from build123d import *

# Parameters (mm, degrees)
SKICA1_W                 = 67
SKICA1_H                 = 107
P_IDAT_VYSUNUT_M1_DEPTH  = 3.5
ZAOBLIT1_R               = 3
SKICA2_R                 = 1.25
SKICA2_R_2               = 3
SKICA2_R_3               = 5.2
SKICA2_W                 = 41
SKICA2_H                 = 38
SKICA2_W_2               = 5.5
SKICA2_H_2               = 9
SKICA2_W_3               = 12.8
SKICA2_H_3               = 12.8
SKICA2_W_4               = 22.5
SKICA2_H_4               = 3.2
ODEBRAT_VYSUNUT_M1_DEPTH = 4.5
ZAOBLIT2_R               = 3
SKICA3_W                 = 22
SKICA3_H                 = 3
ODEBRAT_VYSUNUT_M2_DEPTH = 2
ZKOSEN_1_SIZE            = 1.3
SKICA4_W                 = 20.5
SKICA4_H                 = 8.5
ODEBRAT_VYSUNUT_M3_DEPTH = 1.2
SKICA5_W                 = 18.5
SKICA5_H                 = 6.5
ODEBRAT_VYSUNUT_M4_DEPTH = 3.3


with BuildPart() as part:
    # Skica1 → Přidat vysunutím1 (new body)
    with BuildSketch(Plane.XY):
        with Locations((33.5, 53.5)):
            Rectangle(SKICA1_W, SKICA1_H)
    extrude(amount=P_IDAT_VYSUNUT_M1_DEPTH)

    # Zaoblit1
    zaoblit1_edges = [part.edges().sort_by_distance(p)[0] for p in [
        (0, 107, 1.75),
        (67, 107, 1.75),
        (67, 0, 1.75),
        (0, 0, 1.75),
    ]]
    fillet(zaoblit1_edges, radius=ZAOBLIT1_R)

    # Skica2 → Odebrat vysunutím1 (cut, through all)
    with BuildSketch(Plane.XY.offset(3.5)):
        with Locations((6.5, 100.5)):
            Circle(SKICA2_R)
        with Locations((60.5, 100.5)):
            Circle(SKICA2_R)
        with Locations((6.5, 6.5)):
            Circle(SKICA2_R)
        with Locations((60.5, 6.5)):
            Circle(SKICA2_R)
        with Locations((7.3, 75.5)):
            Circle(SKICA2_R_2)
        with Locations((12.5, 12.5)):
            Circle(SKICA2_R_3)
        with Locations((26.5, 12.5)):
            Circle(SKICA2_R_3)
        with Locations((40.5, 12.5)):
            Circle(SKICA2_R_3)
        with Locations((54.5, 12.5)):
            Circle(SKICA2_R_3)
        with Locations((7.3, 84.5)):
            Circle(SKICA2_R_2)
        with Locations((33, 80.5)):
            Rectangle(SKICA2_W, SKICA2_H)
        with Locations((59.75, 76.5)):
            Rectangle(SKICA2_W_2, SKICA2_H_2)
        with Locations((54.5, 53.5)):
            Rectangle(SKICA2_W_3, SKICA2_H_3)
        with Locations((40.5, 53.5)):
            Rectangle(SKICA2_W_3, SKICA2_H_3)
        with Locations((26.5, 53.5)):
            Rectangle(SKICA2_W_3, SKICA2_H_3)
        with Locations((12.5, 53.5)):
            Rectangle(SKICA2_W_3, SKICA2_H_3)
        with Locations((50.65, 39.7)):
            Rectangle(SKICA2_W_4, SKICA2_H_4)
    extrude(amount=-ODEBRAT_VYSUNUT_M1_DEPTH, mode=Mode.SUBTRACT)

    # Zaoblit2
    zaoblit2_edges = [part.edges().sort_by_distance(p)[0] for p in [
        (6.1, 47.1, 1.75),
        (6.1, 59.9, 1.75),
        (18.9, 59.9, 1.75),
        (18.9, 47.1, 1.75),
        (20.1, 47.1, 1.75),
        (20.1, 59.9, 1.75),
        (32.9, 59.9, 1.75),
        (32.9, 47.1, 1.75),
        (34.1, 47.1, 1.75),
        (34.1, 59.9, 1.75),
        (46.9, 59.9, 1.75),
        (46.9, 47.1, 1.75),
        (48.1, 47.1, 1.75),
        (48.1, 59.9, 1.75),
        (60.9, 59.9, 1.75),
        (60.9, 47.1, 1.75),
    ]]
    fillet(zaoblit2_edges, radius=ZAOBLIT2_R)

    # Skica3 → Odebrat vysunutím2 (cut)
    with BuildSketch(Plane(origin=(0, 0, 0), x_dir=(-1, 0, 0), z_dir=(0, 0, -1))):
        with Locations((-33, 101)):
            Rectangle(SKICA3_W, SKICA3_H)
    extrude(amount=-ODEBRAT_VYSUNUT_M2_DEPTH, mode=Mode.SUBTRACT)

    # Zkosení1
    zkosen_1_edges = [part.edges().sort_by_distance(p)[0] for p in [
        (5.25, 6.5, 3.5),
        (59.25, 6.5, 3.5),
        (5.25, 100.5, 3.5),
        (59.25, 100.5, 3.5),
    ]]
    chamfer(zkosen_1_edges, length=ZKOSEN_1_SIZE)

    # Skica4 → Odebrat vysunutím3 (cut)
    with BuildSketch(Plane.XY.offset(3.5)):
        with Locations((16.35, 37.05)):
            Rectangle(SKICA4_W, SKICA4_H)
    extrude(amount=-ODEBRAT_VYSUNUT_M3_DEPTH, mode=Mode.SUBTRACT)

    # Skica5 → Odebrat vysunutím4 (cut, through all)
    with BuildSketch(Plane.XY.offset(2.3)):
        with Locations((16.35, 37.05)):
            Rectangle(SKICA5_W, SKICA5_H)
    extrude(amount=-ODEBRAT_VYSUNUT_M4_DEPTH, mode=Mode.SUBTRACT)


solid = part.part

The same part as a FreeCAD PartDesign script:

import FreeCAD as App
import Part
import Sketcher
from FreeCAD import Vector
Q = App.Units.Quantity


def edges_at(feature, points):
    """Names of the edges that pass closest to the given points."""
    edges = feature.Shape.Edges
    near = lambda p: min(range(len(edges)), key=lambda i: edges[i].distToShape(Part.Vertex(*p))[0])
    return sorted({f"Edge{near(p) + 1}" for p in points})


def add_polygon(sketch, points):
    """Adds a closed chain of lines whose ends are joined by coincident constraints."""
    first, n = sketch.GeometryCount, len(points)
    for a, b in zip(points, points[1:] + points[:1]):
        sketch.addGeometry(Part.LineSegment(App.Vector(*a, 0), App.Vector(*b, 0)), False)
    for i in range(n):
        sketch.addConstraint(Sketcher.Constraint("Coincident", first + i, 2, first + (i + 1) % n, 1))

doc = App.newDocument("Part")
body = doc.addObject("PartDesign::Body", "Body")

sketch1 = body.newObject("Sketcher::SketchObject", "Sketch")
sketch1.AttachmentSupport = (doc.getObject("XY_Plane"), [""])
sketch1.MapMode = "FlatFace"
add_polygon(sketch1, [(0, 107), (0, 0), (67, 0), (67, 107)])
sketch1.addConstraint([
    Sketcher.Constraint("Vertical", 0),
    Sketcher.Constraint("Horizontal", 1),
    Sketcher.Constraint("Vertical", 2),
    Sketcher.Constraint("Horizontal", 3),
    Sketcher.Constraint("Coincident", 0, 2, -1, 1),
    Sketcher.Constraint("DistanceX", 1, 1, 1, 2, Q("67 mm")),
    Sketcher.Constraint("DistanceY", 0, 2, 0, 1, Q("107 mm")),
])
pad1 = body.newObject("PartDesign::Pad", "Pad")
pad1.Profile = sketch1
pad1.Length = 3.5
doc.recompute()

fillet = body.newObject("PartDesign::Fillet", "Fillet")
fillet.Base = (pad1, edges_at(pad1, [
    (0, 107, 1.75),
    (67, 107, 1.75),
    (67, 0, 1.75),
    (0, 0, 1.75),
]))
fillet.Radius = 3

sketch2 = body.newObject("Sketcher::SketchObject", "Sketch001")
sketch2.AttachmentSupport = (doc.getObject("XY_Plane"), [""])
sketch2.MapMode = "FlatFace"
sketch2.AttachmentOffset = App.Placement(Vector(0, 0, 3.5), App.Rotation())
sketch2.addGeometry(Part.Circle(Vector(6.5, 100.5, 0), Vector(0, 0, 1), 1.25), False)
sketch2.addGeometry(Part.Circle(Vector(60.5, 100.5, 0), Vector(0, 0, 1), 1.25), False)
sketch2.addGeometry(Part.Circle(Vector(6.5, 6.5, 0), Vector(0, 0, 1), 1.25), False)
sketch2.addGeometry(Part.Circle(Vector(60.5, 6.5, 0), Vector(0, 0, 1), 1.25), False)
sketch2.addGeometry(Part.Circle(Vector(7.3, 75.5, 0), Vector(0, 0, 1), 3), False)
sketch2.addGeometry(Part.Circle(Vector(12.5, 12.5, 0), Vector(0, 0, 1), 5.2), False)
sketch2.addGeometry(Part.Circle(Vector(26.5, 12.5, 0), Vector(0, 0, 1), 5.2), False)
sketch2.addGeometry(Part.Circle(Vector(40.5, 12.5, 0), Vector(0, 0, 1), 5.2), False)
sketch2.addGeometry(Part.Circle(Vector(54.5, 12.5, 0), Vector(0, 0, 1), 5.2), False)
sketch2.addGeometry(Part.Circle(Vector(7.3, 84.5, 0), Vector(0, 0, 1), 3), False)
add_polygon(sketch2, [(12.5, 99.5), (12.5, 61.5), (53.5, 61.5), (53.5, 99.5)])
add_polygon(sketch2, [(57, 81), (57, 72), (62.5, 72), (62.5, 81)])
add_polygon(sketch2, [(48.1, 59.9), (48.1, 47.1), (60.9, 47.1), (60.9, 59.9)])
add_polygon(sketch2, [(34.1, 59.9), (34.1, 47.1), (46.9, 47.1), (46.9, 59.9)])
add_polygon(sketch2, [(20.1, 59.9), (20.1, 47.1), (32.9, 47.1), (32.9, 59.9)])
add_polygon(sketch2, [(6.1, 59.9), (6.1, 47.1), (18.9, 47.1), (18.9, 59.9)])
add_polygon(sketch2, [(39.4, 41.3), (39.4, 38.1), (61.9, 38.1), (61.9, 41.3)])
sketch2.addConstraint([
    Sketcher.Constraint("Vertical", 10),
    Sketcher.Constraint("Horizontal", 11),
    Sketcher.Constraint("Vertical", 12),
    Sketcher.Constraint("Horizontal", 13),
    Sketcher.Constraint("Vertical", 14),
    Sketcher.Constraint("Horizontal", 15),
    Sketcher.Constraint("Vertical", 16),
    Sketcher.Constraint("Horizontal", 17),
    Sketcher.Constraint("Vertical", 18),
    Sketcher.Constraint("Horizontal", 19),
    Sketcher.Constraint("Vertical", 20),
    Sketcher.Constraint("Horizontal", 21),
    Sketcher.Constraint("Vertical", 22),
    Sketcher.Constraint("Horizontal", 23),
    Sketcher.Constraint("Vertical", 24),
    Sketcher.Constraint("Horizontal", 25),
    Sketcher.Constraint("Vertical", 26),
    Sketcher.Constraint("Horizontal", 27),
    Sketcher.Constraint("Vertical", 28),
    Sketcher.Constraint("Horizontal", 29),
    Sketcher.Constraint("Vertical", 30),
    Sketcher.Constraint("Horizontal", 31),
    Sketcher.Constraint("Vertical", 32),
    Sketcher.Constraint("Horizontal", 33),
    Sketcher.Constraint("Vertical", 34),
    Sketcher.Constraint("Horizontal", 35),
    Sketcher.Constraint("Vertical", 36),
    Sketcher.Constraint("Horizontal", 37),
    Sketcher.Constraint("Equal", 0, 1),
    Sketcher.Constraint("Equal", 1, 2),
    Sketcher.Constraint("Equal", 2, 3),
    Sketcher.Constraint("Equal", 5, 6),
    Sketcher.Constraint("Equal", 6, 7),
    Sketcher.Constraint("Equal", 7, 8),
    Sketcher.Constraint("Equal", 4, 9),
    Sketcher.Constraint("Horizontal", 0, 3, 1, 3),
    Sketcher.Constraint("Horizontal", 2, 3, 3, 3),
    Sketcher.Constraint("Horizontal", 5, 3, 6, 3),
    Sketcher.Constraint("Horizontal", 6, 3, 7, 3),
    Sketcher.Constraint("Horizontal", 7, 3, 8, 3),
    Sketcher.Constraint("Horizontal", 19, 2, 22, 2),
    Sketcher.Constraint("Horizontal", 21, 2, 24, 2),
    Sketcher.Constraint("Horizontal", 23, 2, 26, 2),
    Sketcher.Constraint("Horizontal", 25, 2, 28, 2),
    Sketcher.Constraint("Horizontal", 27, 2, 30, 2),
    Sketcher.Constraint("Horizontal", 29, 2, 32, 2),
    Sketcher.Constraint("Vertical", 0, 3, 2, 3),
    Sketcher.Constraint("Vertical", 1, 3, 3, 3),
    Sketcher.Constraint("Vertical", 4, 3, 9, 3),
    Sketcher.Constraint("Vertical", 5, 3, 10, 2),
    Sketcher.Constraint("Equal", 21, 23),
    Sketcher.Constraint("Equal", 25, 27),
    Sketcher.Constraint("Equal", 29, 31),
    Sketcher.Constraint("Equal", 33, 18),
    Sketcher.Constraint("Diameter", 4, Q("6 mm")),
    Sketcher.Constraint("Diameter", 0, Q("2.5 mm")),
    Sketcher.Constraint("Diameter", 5, Q("10.4 mm")),
    Sketcher.Constraint("DistanceX", 11, 1, 11, 2, Q("41 mm")),
    Sketcher.Constraint("DistanceY", 10, 2, 10, 1, Q("38 mm")),
    Sketcher.Constraint("DistanceY", 14, 2, 14, 1, Q("9 mm")),
    Sketcher.Constraint("DistanceX", 15, 1, 15, 2, Q("5.5 mm")),
    Sketcher.Constraint("DistanceX", 19, 1, 19, 2, Q("12.8 mm")),
    Sketcher.Constraint("DistanceX", 35, 1, 35, 2, Q("22.5 mm")),
    Sketcher.Constraint("DistanceY", 34, 2, 34, 1, Q("3.2 mm")),
    Sketcher.Constraint("DistanceX", -1, 1, 14, 2, Q("57 mm")),
    Sketcher.Constraint("DistanceY", -1, 1, 14, 2, Q("72 mm")),
    Sketcher.Constraint("DistanceX", 0, 3, 1, 3, Q("54 mm")),
    Sketcher.Constraint("DistanceY", 2, 3, 0, 3, Q("94 mm")),
    Sketcher.Constraint("DistanceY", 4, 3, 0, 3, Q("25 mm")),
    Sketcher.Constraint("DistanceX", 2, 3, 5, 3, Q("6 mm")),
    Sketcher.Constraint("DistanceY", 2, 3, 5, 3, Q("6 mm")),
    Sketcher.Constraint("DistanceX", 5, 3, 6, 3, Q("14 mm")),
    Sketcher.Constraint("DistanceX", 6, 3, 7, 3, Q("14 mm")),
    Sketcher.Constraint("DistanceX", 8, 3, 3, 3, Q("6 mm")),
    Sketcher.Constraint("DistanceY", 4, 3, 9, 3, Q("9 mm")),
    Sketcher.Constraint("DistanceY", 10, 2, 4, 3, Q("14 mm")),
    Sketcher.Constraint("DistanceX", 11, 2, 15, 2, Q("9 mm")),
    Sketcher.Constraint("DistanceX", 22, 2, 18, 2, Q("14 mm")),
    Sketcher.Constraint("DistanceX", 26, 2, 22, 2, Q("14 mm")),
    Sketcher.Constraint("DistanceX", 30, 2, 26, 2, Q("14 mm")),
    Sketcher.Constraint("DistanceY", 34, 2, 22, 2, Q("9 mm")),
    Sketcher.Constraint("DistanceX", 19, 2, 35, 2, Q("1 mm")),
    Sketcher.Constraint("DistanceY", -1, 1, 0, 3, Q("100.5 mm")),
    Sketcher.Constraint("DistanceX", -1, 1, 4, 3, Q("7.3 mm")),
    Sketcher.Constraint("DistanceX", -1, 1, 18, 2, Q("48.1 mm")),
    Sketcher.Constraint("DistanceY", -1, 1, 18, 2, Q("47.1 mm")),
])
pocket1 = body.newObject("PartDesign::Pocket", "Pocket")
pocket1.Profile = sketch2
pocket1.Type = "ThroughAll"
doc.recompute()

fillet2 = body.newObject("PartDesign::Fillet", "Fillet001")
fillet2.Base = (pocket1, edges_at(pocket1, [
    (6.1, 47.1, 1.75),
    (6.1, 59.9, 1.75),
    (18.9, 59.9, 1.75),
    (18.9, 47.1, 1.75),
    (20.1, 47.1, 1.75),
    (20.1, 59.9, 1.75),
    (32.9, 59.9, 1.75),
    (32.9, 47.1, 1.75),
    (34.1, 47.1, 1.75),
    (34.1, 59.9, 1.75),
    (46.9, 59.9, 1.75),
    (46.9, 47.1, 1.75),
    (48.1, 47.1, 1.75),
    (48.1, 59.9, 1.75),
    (60.9, 59.9, 1.75),
    (60.9, 47.1, 1.75),
]))
fillet2.Radius = 3

sketch3 = body.newObject("Sketcher::SketchObject", "Sketch002")
sketch3.AttachmentSupport = (doc.getObject("XY_Plane"), [""])
sketch3.MapMode = "FlatFace"
add_polygon(sketch3, [(44, 102.5), (44, 99.5), (22, 99.5), (22, 102.5)])
sketch3.addConstraint([
    Sketcher.Constraint("Vertical", 0),
    Sketcher.Constraint("Horizontal", 1),
    Sketcher.Constraint("Vertical", 2),
    Sketcher.Constraint("Horizontal", 3),
    Sketcher.Constraint("DistanceX", 1, 2, 1, 1, Q("22 mm")),
    Sketcher.Constraint("DistanceY", 0, 2, 0, 1, Q("3 mm")),
    Sketcher.Constraint("DistanceX", -1, 1, 0, 2, Q("44 mm")),
    Sketcher.Constraint("DistanceY", -1, 1, 0, 2, Q("99.5 mm")),
])
pocket2 = body.newObject("PartDesign::Pocket", "Pocket001")
pocket2.Profile = sketch3
pocket2.Length = 2
pocket2.Reversed = True
doc.recompute()

chamfer = body.newObject("PartDesign::Chamfer", "Chamfer")
chamfer.Base = (pocket2, edges_at(pocket2, [
    (5.25, 6.5, 3.5),
    (59.25, 6.5, 3.5),
    (5.25, 100.5, 3.5),
    (59.25, 100.5, 3.5),
]))
chamfer.Size = 1.3

sketch4 = body.newObject("Sketcher::SketchObject", "Sketch003")
sketch4.AttachmentSupport = (doc.getObject("XY_Plane"), [""])
sketch4.MapMode = "FlatFace"
sketch4.AttachmentOffset = App.Placement(Vector(0, 0, 3.5), App.Rotation())
add_polygon(sketch4, [(6.1, 41.3), (6.1, 32.8), (26.6, 32.8), (26.6, 41.3)])
sketch4.addConstraint([
    Sketcher.Constraint("Vertical", 0),
    Sketcher.Constraint("Horizontal", 1),
    Sketcher.Constraint("Vertical", 2),
    Sketcher.Constraint("Horizontal", 3),
    Sketcher.Constraint("DistanceX", 1, 1, 1, 2, Q("20.5 mm")),
    Sketcher.Constraint("DistanceY", 0, 2, 0, 1, Q("8.5 mm")),
    Sketcher.Constraint("DistanceX", -1, 1, 0, 2, Q("6.1 mm")),
    Sketcher.Constraint("DistanceY", -1, 1, 0, 2, Q("32.8 mm")),
])
pocket3 = body.newObject("PartDesign::Pocket", "Pocket002")
pocket3.Profile = sketch4
pocket3.Length = 1.2

sketch5 = body.newObject("Sketcher::SketchObject", "Sketch004")
sketch5.AttachmentSupport = (doc.getObject("XY_Plane"), [""])
sketch5.MapMode = "FlatFace"
sketch5.AttachmentOffset = App.Placement(Vector(0, 0, 2.3), App.Rotation())
add_polygon(sketch5, [(7.1, 40.3), (7.1, 33.8), (25.6, 33.8), (25.6, 40.3)])
sketch5.addConstraint([
    Sketcher.Constraint("Vertical", 0),
    Sketcher.Constraint("Horizontal", 1),
    Sketcher.Constraint("Vertical", 2),
    Sketcher.Constraint("Horizontal", 3),
    Sketcher.Constraint("DistanceX", 1, 1, 1, 2, Q("18.5 mm")),
    Sketcher.Constraint("DistanceY", 0, 2, 0, 1, Q("6.5 mm")),
    Sketcher.Constraint("DistanceX", -1, 1, 0, 2, Q("7.1 mm")),
    Sketcher.Constraint("DistanceY", -1, 1, 0, 2, Q("33.8 mm")),
])
pocket4 = body.newObject("PartDesign::Pocket", "Pocket003")
pocket4.Profile = sketch5
pocket4.Type = "ThroughAll"

doc.recompute()
